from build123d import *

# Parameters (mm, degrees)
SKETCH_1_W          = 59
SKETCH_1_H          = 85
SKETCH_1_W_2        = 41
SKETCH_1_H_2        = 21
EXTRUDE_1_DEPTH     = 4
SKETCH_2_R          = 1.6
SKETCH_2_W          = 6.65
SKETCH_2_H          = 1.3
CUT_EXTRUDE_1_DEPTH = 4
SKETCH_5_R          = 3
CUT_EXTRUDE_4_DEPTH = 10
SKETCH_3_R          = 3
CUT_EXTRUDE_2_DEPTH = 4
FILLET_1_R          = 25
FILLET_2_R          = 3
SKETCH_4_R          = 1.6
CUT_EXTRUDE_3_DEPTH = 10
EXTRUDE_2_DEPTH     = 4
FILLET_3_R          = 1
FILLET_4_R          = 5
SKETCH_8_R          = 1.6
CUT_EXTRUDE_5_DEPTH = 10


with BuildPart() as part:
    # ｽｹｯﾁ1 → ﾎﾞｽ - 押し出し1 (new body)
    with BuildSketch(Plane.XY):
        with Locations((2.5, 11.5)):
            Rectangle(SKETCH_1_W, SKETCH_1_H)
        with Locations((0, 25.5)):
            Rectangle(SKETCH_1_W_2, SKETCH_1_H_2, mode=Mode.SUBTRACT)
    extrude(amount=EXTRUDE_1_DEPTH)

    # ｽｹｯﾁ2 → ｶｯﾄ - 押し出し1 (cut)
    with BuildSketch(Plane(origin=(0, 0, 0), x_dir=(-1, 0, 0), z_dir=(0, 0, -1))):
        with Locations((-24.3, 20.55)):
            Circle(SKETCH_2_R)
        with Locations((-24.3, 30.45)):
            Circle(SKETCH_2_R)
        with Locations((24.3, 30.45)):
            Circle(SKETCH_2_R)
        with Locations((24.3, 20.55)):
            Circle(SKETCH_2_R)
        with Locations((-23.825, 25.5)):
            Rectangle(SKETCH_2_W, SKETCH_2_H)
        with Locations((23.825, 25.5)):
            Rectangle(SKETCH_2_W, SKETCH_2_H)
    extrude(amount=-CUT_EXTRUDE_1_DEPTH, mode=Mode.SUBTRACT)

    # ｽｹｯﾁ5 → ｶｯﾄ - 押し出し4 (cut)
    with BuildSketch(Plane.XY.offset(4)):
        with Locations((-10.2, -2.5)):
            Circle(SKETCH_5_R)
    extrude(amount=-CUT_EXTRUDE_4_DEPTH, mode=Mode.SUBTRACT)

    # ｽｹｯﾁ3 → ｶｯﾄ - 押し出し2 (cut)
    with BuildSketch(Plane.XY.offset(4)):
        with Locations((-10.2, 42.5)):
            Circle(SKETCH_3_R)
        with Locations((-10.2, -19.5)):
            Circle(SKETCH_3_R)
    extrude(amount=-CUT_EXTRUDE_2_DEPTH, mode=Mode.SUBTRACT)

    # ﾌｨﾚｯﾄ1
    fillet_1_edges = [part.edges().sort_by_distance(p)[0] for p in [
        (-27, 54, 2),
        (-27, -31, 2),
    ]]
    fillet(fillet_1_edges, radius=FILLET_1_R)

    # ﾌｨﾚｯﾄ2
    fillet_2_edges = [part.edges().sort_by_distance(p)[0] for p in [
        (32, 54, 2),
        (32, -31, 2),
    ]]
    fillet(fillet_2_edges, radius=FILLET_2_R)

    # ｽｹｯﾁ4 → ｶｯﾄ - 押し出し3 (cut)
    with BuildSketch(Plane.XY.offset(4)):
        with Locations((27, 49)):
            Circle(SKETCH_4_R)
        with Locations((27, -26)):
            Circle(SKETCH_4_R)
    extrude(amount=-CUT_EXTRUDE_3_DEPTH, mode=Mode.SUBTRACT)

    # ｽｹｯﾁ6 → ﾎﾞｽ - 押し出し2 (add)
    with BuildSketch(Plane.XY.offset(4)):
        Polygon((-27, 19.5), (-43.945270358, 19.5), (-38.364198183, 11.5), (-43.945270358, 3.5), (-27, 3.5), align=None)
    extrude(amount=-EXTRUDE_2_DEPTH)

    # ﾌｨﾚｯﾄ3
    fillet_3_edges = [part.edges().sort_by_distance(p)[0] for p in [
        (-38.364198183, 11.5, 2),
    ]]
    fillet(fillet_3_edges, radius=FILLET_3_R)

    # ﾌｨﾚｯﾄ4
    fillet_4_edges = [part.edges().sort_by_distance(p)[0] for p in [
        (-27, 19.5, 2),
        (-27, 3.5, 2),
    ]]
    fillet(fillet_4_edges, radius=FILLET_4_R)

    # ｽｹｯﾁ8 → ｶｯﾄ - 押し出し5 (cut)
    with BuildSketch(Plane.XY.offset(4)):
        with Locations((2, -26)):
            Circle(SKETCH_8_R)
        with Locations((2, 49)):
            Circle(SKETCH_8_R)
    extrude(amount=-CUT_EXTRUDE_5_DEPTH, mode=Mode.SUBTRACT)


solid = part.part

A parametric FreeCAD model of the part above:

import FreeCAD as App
import Part
import Sketcher
from FreeCAD import Vector


def edges_at(feature, points):
    """Names of the edges that pass closest to the given points."""
    edges = feature.Shape.Edges
    near = lambda p: min(range(len(edges)), key=lambda i: edges[i].distToShape(Part.Vertex(*p))[0])
    return sorted({f"Edge{near(p) + 1}" for p in points})


def add_polygon(sketch, points):
    """Adds a closed chain of lines whose ends are joined by coincident constraints."""
    first, n = sketch.GeometryCount, len(points)
    for a, b in zip(points, points[1:] + points[:1]):
        sketch.addGeometry(Part.LineSegment(App.Vector(*a, 0), App.Vector(*b, 0)), False)
    for i in range(n):
        sketch.addConstraint(Sketcher.Constraint("Coincident", first + i, 2, first + (i + 1) % n, 1))

doc = App.newDocument("Part")
body = doc.addObject("PartDesign::Body", "Body")

# Sketch on XY plane
sketch1 = body.newObject("Sketcher::SketchObject", "Sketch")
sketch1.AttachmentSupport = (doc.getObject("XY_Plane"), [""])
sketch1.MapMode = "FlatFace"
add_polygon(sketch1, [(-27, 54), (-27, -31), (32, -31), (32, 54)])  # lines 0-3
add_polygon(sketch1, [(20, 15), (-20, 15), (-20, 36), (20, 36)])  # lines 4-7
sketch1.addConstraint([
    Sketcher.Constraint("Vertical", 0),
    Sketcher.Constraint("Horizontal", 1),
    Sketcher.Constraint("Vertical", 2),
    Sketcher.Constraint("Horizontal", 3),
    Sketcher.Constraint("Horizontal", 4),
    Sketcher.Constraint("Vertical", 5),
    Sketcher.Constraint("Horizontal", 6),
    Sketcher.Constraint("Vertical", 7),
    Sketcher.Constraint("DistanceX", 1, 1, 1, 2, 59.0),
    Sketcher.Constraint("DistanceX", 4, 2, 4, 1, 41.0),
    Sketcher.Constraint("DistanceY", 0, 2, 0, 1, 85.0),
    Sketcher.Constraint("DistanceY", 5, 1, 5, 2, 21.0),
    Sketcher.Constraint("DistanceX", 0, 2, -1, 1, 27.0),
    Sketcher.Constraint("DistanceY", 0, 2, -1, 1, 31.0),
    Sketcher.Constraint("DistanceY", -1, 1, 4, 2, 15.0),
    Sketcher.Constraint("DistanceX", 4, 2, -1, 1, 20.5),
])
pad1 = body.newObject("PartDesign::Pad", "Pad")
pad1.Profile = sketch1
pad1.Length = 4

# Sketch on XY plane
sketch2 = body.newObject("Sketcher::SketchObject", "Sketch001")
sketch2.AttachmentSupport = (doc.getObject("XY_Plane"), [""])
sketch2.MapMode = "FlatFace"
sketch2.addGeometry(Part.Circle(Vector(24.3, 20.6, 0), Vector(0, 0, 1), 1.6), False)  # 0
sketch2.addGeometry(Part.Circle(Vector(24.3, 30.4, 0), Vector(0, 0, 1), 1.6), False)  # 1
sketch2.addGeometry(Part.Circle(Vector(-24.3, 30.4, 0), Vector(0, 0, 1), 1.6), False)  # 2
sketch2.addGeometry(Part.Circle(Vector(-24.3, 20.6, 0), Vector(0, 0, 1), 1.6), False)  # 3
add_polygon(sketch2, [(27.1, 26.1), (27.1, 24.9), (20.5, 24.9), (20.5, 26.1)])  # lines 4-7
add_polygon(sketch2, [(-20.5, 26.1), (-20.5, 24.9), (-27.1, 24.9), (-27.1, 26.1)])  # lines 8-11
sketch2.addConstraint([
    Sketcher.Constraint("Vertical", 4),
    Sketcher.Constraint("Horizontal", 5),
    Sketcher.Constraint("Vertical", 6),
    Sketcher.Constraint("Horizontal", 7),
    Sketcher.Constraint("Vertical", 8),
    Sketcher.Constraint("Horizontal", 9),
    Sketcher.Constraint("Vertical", 10),
    Sketcher.Constraint("Horizontal", 11),
    Sketcher.Constraint("Equal", 0, 1),
    Sketcher.Constraint("Equal", 1, 2),
    Sketcher.Constraint("Equal", 2, 3),
    Sketcher.Constraint("Symmetric", 1, 3, 2, 3, -2),
    Sketcher.Constraint("Symmetric", 0, 3, 3, 3, -2),
    Sketcher.Constraint("Symmetric", 5, 2, 8, 2, -2),
    Sketcher.Constraint("Symmetric", 7, 2, 10, 2, -2),
    Sketcher.Constraint("Vertical", 0, 3, 1, 3),
    Sketcher.Constraint("Diameter", 0, 3.2),
    Sketcher.Constraint("DistanceY", 4, 2, 4, 1, 1.3),
    Sketcher.Constraint("DistanceX", 8, 2, 5, 2, 41.0),
    Sketcher.Constraint("DistanceX", 5, 2, 5, 1, 6.65),
    Sketcher.Constraint("DistanceX", -1, 1, 0, 3, 24.3),
    Sketcher.Constraint("DistanceY", 0, 3, 1, 3, 9.9),
    Sketcher.Constraint("DistanceY", 0, 3, 4, 2, 4.3),
    Sketcher.Constraint("DistanceY", -1, 1, 0, 3, 20.55),
])
pocket1 = body.newObject("PartDesign::Pocket", "Pocket")
pocket1.Profile = sketch2
pocket1.Length = 4
pocket1.Reversed = True

# Sketch on XY plane
sketch3 = body.newObject("Sketcher::SketchObject", "Sketch002")
sketch3.AttachmentSupport = (doc.getObject("XY_Plane"), [""])
sketch3.MapMode = "FlatFace"
sketch3.AttachmentOffset = App.Placement(Vector(0, 0, 4), App.Rotation())
sketch3.addGeometry(Part.Circle(Vector(-10.2, -2.5, 0), Vector(0, 0, 1), 3), False)
sketch3.addConstraint([
    Sketcher.Constraint("Diameter", 0, 6.0),
    Sketcher.Constraint("DistanceX", 0, 3, -1, 1, 10.2),
    Sketcher.Constraint("DistanceY", 0, 3, -1, 1, 2.5),
])
pocket2 = body.newObject("PartDesign::Pocket", "Pocket001")
pocket2.Profile = sketch3
pocket2.Length = 10

# Sketch on XY plane
sketch4 = body.newObject("Sketcher::SketchObject", "Sketch003")
sketch4.AttachmentSupport = (doc.getObject("XY_Plane"), [""])
sketch4.MapMode = "FlatFace"
sketch4.AttachmentOffset = App.Placement(Vector(0, 0, 4), App.Rotation())
sketch4.addGeometry([
    Part.Circle(Vector(-10.2, 42.5, 0), Vector(0, 0, 1), 3),
    Part.Circle(Vector(-10.2, -19.5, 0), Vector(0, 0, 1), 3),
], False)
sketch4.addConstraint([
    Sketcher.Constraint("Equal", 0, 1),
    Sketcher.Constraint("Vertical", 0, 3, 1, 3),
    Sketcher.Constraint("Diameter", 0, 6.0),
    Sketcher.Constraint("DistanceY", 1, 3, 0, 3, 62.0),
    Sketcher.Constraint("DistanceX", 0, 3, -1, 1, 10.2),
    Sketcher.Constraint("DistanceY", -1, 1, 0, 3, 42.5),
])
pocket3 = body.newObject("PartDesign::Pocket", "Pocket002")
pocket3.Profile = sketch4
pocket3.Length = 4
doc.recompute()

fillet = body.newObject("PartDesign::Fillet", "Fillet")
fillet.Base = (pocket3, edges_at(pocket3, [(-27, 54, 2), (-27, -31, 2)]))
fillet.Radius = 25
doc.recompute()

fillet2 = body.newObject("PartDesign::Fillet", "Fillet001")
fillet2.Base = (fillet, edges_at(fillet, [(32, 54, 2), (32, -31, 2)]))
fillet2.Radius = 3

# Sketch on XY plane
sketch5 = body.newObject("Sketcher::SketchObject", "Sketch004")
sketch5.AttachmentSupport = (doc.getObject("XY_Plane"), [""])
sketch5.MapMode = "FlatFace"
sketch5.AttachmentOffset = App.Placement(Vector(0, 0, 4), App.Rotation())
sketch5.addGeometry([
    Part.Circle(Vector(27, 49, 0), Vector(0, 0, 1), 1.6),
    Part.Circle(Vector(27, -26, 0), Vector(0, 0, 1), 1.6),
], False)
sketch5.addConstraint([
    Sketcher.Constraint("Equal", 0, 1),
    Sketcher.Constraint("Vertical", 0, 3, 1, 3),
    Sketcher.Constraint("Diameter", 0, 3.2),
    Sketcher.Constraint("DistanceX", -1, 1, 0, 3, 27.0),
    Sketcher.Constraint("DistanceY", -1, 1, 0, 3, 49.0),
    Sketcher.Constraint("DistanceY", 1, 3, -1, 1, 26.0),
])
pocket4 = body.newObject("PartDesign::Pocket", "Pocket003")
pocket4.Profile = sketch5
pocket4.Length = 10

# Sketch on XY plane
sketch6 = body.newObject("Sketcher::SketchObject", "Sketch005")
sketch6.AttachmentSupport = (doc.getObject("XY_Plane"), [""])
sketch6.MapMode = "FlatFace"
sketch6.AttachmentOffset = App.Placement(Vector(0, 0, 4), App.Rotation())
add_polygon(sketch6, [(-27, 20), (-44, 20), (-38, 12), (-44, 4), (-27, 4)])  # lines 0-4
sketch6.addConstraint([
    Sketcher.Constraint("Horizontal", 0),
    Sketcher.Constraint("Horizontal", 3),
    Sketcher.Constraint("Vertical", 4),
    Sketcher.Constraint("Vertical", 0, 2, 2, 2),
    Sketcher.Constraint("Equal", 1, 2),
    Sketcher.Constraint("DistanceY", 4, 1, 4, 2, 16.0),
    Sketcher.Constraint("DistanceX", 3, 2, -1, 1, 27.0),
    Sketcher.Constraint("DistanceY", -1, 1, 0, 2, 19.5),
    Sketcher.Constraint("DistanceX", 0, 2, 0, 1, 16.94527),
    Sketcher.Constraint("DistanceX", 1, 2, -1, 1, 38.364198),
])
pad2 = body.newObject("PartDesign::Pad", "Pad001")
pad2.Profile = sketch6
pad2.Length = 4
pad2.Reversed = True
doc.recompute()

fillet3 = body.newObject("PartDesign::Fillet", "Fillet002")
fillet3.Base = (pad2, edges_at(pad2, [(-38.364, 11.5, 2)]))
fillet3.Radius = 1
doc.recompute()

fillet4 = body.newObject("PartDesign::Fillet", "Fillet003")
fillet4.Base = (fillet3, edges_at(fillet3, [(-27, 19.5, 2), (-27, 3.5, 2)]))
fillet4.Radius = 5

# Sketch on XY plane
sketch7 = body.newObject("Sketcher::SketchObject", "Sketch006")
sketch7.AttachmentSupport = (doc.getObject("XY_Plane"), [""])
sketch7.MapMode = "FlatFace"
sketch7.AttachmentOffset = App.Placement(Vector(0, 0, 4), App.Rotation())
sketch7.addGeometry([
    Part.Circle(Vector(2, -26, 0), Vector(0, 0, 1), 1.6),
    Part.Circle(Vector(2, 49, 0), Vector(0, 0, 1), 1.6),
], False)
sketch7.addConstraint([
    Sketcher.Constraint("Equal", 0, 1),
    Sketcher.Constraint("Vertical", 0, 3, 1, 3),
    Sketcher.Constraint("Diameter", 0, 3.2),
    Sketcher.Constraint("DistanceX", -1, 1, 0, 3, 2.0),
    Sketcher.Constraint("DistanceY", 0, 3, -1, 1, 26.0),
    Sketcher.Constraint("DistanceY", -1, 1, 1, 3, 49.0),
])
pocket5 = body.newObject("PartDesign::Pocket", "Pocket004")
pocket5.Profile = sketch7
pocket5.Length = 10

doc.recompute()
